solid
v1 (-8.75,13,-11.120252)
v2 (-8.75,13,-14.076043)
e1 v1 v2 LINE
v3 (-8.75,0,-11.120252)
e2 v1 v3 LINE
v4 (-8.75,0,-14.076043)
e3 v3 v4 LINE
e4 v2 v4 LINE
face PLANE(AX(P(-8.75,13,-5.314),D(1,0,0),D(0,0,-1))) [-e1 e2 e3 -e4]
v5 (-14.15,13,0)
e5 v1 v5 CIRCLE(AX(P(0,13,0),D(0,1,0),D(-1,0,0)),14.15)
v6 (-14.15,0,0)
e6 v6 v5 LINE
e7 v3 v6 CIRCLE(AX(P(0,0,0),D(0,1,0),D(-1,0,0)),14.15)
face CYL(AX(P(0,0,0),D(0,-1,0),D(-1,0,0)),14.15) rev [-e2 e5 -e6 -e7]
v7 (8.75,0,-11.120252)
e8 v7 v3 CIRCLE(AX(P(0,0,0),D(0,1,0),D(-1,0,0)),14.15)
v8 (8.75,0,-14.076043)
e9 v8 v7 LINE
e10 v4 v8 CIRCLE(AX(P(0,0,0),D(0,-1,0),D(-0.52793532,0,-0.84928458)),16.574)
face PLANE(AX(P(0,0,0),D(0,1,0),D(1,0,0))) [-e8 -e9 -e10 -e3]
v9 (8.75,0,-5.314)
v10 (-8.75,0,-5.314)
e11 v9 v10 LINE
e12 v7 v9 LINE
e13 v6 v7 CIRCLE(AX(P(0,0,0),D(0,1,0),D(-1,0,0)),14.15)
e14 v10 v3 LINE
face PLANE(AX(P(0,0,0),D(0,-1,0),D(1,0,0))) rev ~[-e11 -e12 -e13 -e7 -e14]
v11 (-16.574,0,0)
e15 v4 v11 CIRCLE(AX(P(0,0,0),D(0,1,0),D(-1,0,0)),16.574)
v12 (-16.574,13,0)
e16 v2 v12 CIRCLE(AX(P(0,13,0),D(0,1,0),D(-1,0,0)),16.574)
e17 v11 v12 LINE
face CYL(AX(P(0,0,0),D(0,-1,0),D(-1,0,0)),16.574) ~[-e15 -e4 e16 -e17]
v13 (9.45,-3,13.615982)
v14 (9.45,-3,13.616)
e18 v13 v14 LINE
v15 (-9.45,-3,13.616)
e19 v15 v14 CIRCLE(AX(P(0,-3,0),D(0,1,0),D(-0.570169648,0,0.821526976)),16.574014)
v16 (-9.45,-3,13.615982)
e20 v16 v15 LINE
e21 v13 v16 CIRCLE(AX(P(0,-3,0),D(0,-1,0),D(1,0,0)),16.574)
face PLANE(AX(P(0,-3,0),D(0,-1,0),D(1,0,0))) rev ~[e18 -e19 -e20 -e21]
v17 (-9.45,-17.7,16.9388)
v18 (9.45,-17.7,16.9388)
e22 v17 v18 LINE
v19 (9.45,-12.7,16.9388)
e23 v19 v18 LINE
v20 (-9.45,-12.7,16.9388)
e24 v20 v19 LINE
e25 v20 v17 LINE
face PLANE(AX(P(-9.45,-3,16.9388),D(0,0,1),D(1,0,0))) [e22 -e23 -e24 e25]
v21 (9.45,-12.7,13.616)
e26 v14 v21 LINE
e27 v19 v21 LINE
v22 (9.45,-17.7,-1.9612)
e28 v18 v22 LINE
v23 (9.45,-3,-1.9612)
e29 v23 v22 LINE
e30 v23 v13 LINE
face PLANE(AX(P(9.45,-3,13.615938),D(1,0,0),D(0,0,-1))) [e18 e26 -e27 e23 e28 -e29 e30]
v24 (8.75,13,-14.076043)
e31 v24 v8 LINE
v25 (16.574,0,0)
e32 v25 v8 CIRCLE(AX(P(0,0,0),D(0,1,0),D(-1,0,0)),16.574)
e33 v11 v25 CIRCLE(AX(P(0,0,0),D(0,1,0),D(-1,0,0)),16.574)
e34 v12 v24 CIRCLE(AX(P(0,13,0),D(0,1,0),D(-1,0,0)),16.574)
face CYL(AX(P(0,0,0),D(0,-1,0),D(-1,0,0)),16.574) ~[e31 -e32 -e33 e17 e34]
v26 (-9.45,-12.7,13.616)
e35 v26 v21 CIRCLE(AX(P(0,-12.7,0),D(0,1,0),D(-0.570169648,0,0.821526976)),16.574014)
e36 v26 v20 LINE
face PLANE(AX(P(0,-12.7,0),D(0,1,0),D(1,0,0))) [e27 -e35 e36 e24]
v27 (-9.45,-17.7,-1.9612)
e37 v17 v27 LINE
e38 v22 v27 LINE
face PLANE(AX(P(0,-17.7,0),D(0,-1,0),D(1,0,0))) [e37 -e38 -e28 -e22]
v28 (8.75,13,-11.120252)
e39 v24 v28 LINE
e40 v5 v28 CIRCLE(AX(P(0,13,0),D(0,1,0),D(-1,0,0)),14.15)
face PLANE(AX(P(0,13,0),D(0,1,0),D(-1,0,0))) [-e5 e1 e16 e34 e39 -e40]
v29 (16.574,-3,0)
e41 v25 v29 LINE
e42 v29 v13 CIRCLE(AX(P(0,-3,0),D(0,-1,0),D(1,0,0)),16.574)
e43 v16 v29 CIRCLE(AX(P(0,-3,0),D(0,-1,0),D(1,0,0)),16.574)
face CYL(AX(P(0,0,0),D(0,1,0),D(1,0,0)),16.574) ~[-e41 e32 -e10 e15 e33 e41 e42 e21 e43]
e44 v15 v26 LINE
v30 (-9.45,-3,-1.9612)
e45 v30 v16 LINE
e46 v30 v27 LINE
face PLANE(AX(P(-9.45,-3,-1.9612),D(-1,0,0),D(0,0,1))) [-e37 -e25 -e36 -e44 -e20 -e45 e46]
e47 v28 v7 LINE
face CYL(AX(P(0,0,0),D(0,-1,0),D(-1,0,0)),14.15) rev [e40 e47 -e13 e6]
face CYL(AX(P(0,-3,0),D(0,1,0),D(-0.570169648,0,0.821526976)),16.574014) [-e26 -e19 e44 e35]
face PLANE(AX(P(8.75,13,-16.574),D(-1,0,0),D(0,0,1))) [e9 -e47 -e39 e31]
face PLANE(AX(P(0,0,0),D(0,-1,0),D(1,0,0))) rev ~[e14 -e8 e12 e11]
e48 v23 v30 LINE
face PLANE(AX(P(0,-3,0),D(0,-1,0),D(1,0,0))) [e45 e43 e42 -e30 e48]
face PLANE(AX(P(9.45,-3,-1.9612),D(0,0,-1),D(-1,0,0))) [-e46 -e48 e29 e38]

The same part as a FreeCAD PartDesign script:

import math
import FreeCAD as App
import Part
import Sketcher
from FreeCAD import Vector
Q = App.Units.Quantity


def add_polygon(sketch, points):
    """Adds a closed chain of lines whose ends are joined by coincident constraints."""
    first, n = sketch.GeometryCount, len(points)
    for a, b in zip(points, points[1:] + points[:1]):
        sketch.addGeometry(Part.LineSegment(App.Vector(*a, 0), App.Vector(*b, 0)), False)
    for i in range(n):
        sketch.addConstraint(Sketcher.Constraint("Coincident", first + i, 2, first + (i + 1) % n, 1))

doc = App.newDocument("Part")
body = doc.addObject("PartDesign::Body", "Body")

sketch1 = body.newObject("Sketcher::SketchObject", "Sketch")
sketch1.AttachmentSupport = (doc.getObject("XZ_Plane"), [""])
sketch1.MapMode = "FlatFace"
sketch1.addGeometry(Part.Circle(Vector(0, 0, 0), Vector(0, 0, 1), 17), False)
sketch1.addGeometry(Part.Circle(Vector(0, 0, 0), Vector(0, 0, 1), 14), False)
sketch1.addConstraint(Sketcher.Constraint("Coincident", 0, 3, -1, 1))
sketch1.addConstraint(Sketcher.Constraint("Coincident", 1, 3, -1, 1))
sketch1.addConstraint(Sketcher.Constraint("Diameter", 1, Q("28.3 mm")))
sketch1.addConstraint(Sketcher.Constraint("Diameter", 0, Q("33.148 mm")))
pad1 = body.newObject("PartDesign::Pad", "Pad")
pad1.Profile = sketch1
pad1.Length = 13
pad1.Reversed = True

sketch2 = body.newObject("Sketcher::SketchObject", "Sketch001")
sketch2.AttachmentSupport = (doc.getObject("XZ_Plane"), [""])
sketch2.MapMode = "FlatFace"
sketch2.addGeometry(Part.Circle(Vector(0, 0, 0), Vector(0, 0, 1), 17), False)
sketch2.addConstraint(Sketcher.Constraint("Coincident", 0, 3, -1, 1))
sketch2.addConstraint(Sketcher.Constraint("Diameter", 0, Q("33.148 mm")))
pad2 = body.newObject("PartDesign::Pad", "Pad001")
pad2.Profile = sketch2
pad2.Length = 3

sketch3 = body.newObject("Sketcher::SketchObject", "Sketch002")
sketch3.AttachmentSupport = (doc.getObject("XZ_Plane"), [""])
sketch3.MapMode = "FlatFace"
sketch3.AttachmentOffset = App.Placement(Vector(0, 0, -13), App.Rotation())
add_polygon(sketch3, [(9, -17), (-9, -17), (-9, -5), (9, -5)])
sketch3.addConstraint(Sketcher.Constraint("Horizontal", 0))
sketch3.addConstraint(Sketcher.Constraint("Vertical", 1))
sketch3.addConstraint(Sketcher.Constraint("Horizontal", 2))
sketch3.addConstraint(Sketcher.Constraint("Vertical", 3))
sketch3.addConstraint(Sketcher.Constraint("DistanceX", 0, 2, 0, 1, Q("17.5 mm")))
sketch3.addConstraint(Sketcher.Constraint("DistanceX", 0, 2, -1, 1, Q("8.75 mm")))
sketch3.addConstraint(Sketcher.Constraint("DistanceY", 1, 1, 1, 2, Q("11.26 mm")))
sketch3.addConstraint(Sketcher.Constraint("DistanceY", 0, 2, -1, 1, Q("16.574 mm")))
pocket1 = body.newObject("PartDesign::Pocket", "Pocket")
pocket1.Profile = sketch3
pocket1.Length = 13
pocket1.Reversed = True

sketch4 = body.newObject("Sketcher::SketchObject", "Sketch003")
sketch4.AttachmentSupport = (doc.getObject("XZ_Plane"), [""])
sketch4.MapMode = "FlatFace"
sketch4.AttachmentOffset = App.Placement(Vector(0, 0, 3), App.Rotation())
add_polygon(sketch4, [(9, -2), (9, 17), (-9, 17), (-9, -2)])
sketch4.addConstraint(Sketcher.Constraint("Vertical", 0))
sketch4.addConstraint(Sketcher.Constraint("Horizontal", 1))
sketch4.addConstraint(Sketcher.Constraint("Vertical", 2))
sketch4.addConstraint(Sketcher.Constraint("Horizontal", 3))
sketch4.addConstraint(Sketcher.Constraint("Equal", 3, 0))
sketch4.addConstraint(Sketcher.Constraint("DistanceX", 1, 2, 1, 1, Q("18.9 mm")))
sketch4.addConstraint(Sketcher.Constraint("DistanceX", -1, 1, 0, 2, Q("9.45 mm")))
sketch4.addConstraint(Sketcher.Constraint("DistanceY", -1, 1, 0, 2, Q("16.9388 mm")))
pad3 = body.newObject("PartDesign::Pad", "Pad002")
pad3.Profile = sketch4
pad3.Length = 14.7

sketch5 = body.newObject("Sketcher::SketchObject", "Sketch004")
sketch5.AttachmentSupport = (doc.getObject("XZ_Plane"), [""])
sketch5.MapMode = "FlatFace"
sketch5.AttachmentOffset = App.Placement(Vector(0, 0, 3), App.Rotation())
sketch5.addGeometry(Part.ArcOfCircle(Part.Circle(Vector(0, 0, 0), Vector(0, 0, 1), 16.6), math.radians(55), math.radians(125)), False)
sketch5.addGeometry(Part.LineSegment(Vector(-9.4, 13.6, 0), Vector(-9.4, 16.9, 0)), False)
sketch5.addGeometry(Part.LineSegment(Vector(-9.4, 16.9, 0), Vector(9.4, 16.9, 0)), False)
sketch5.addGeometry(Part.LineSegment(Vector(9.4, 16.9, 0), Vector(9.4, 13.6, 0)), False)
sketch5.addConstraint(Sketcher.Constraint("Coincident", 0, 2, 1, 1))
sketch5.addConstraint(Sketcher.Constraint("Coincident", 1, 2, 2, 1))
sketch5.addConstraint(Sketcher.Constraint("Coincident", 2, 2, 3, 1))
sketch5.addConstraint(Sketcher.Constraint("Coincident", 3, 2, 0, 1))
sketch5.addConstraint(Sketcher.Constraint("Vertical", 1))
sketch5.addConstraint(Sketcher.Constraint("Horizontal", 2))
sketch5.addConstraint(Sketcher.Constraint("Vertical", 3))
sketch5.addConstraint(Sketcher.Constraint("Coincident", 0, 3, -1, 1))
sketch5.addConstraint(Sketcher.Constraint("Horizontal", 0, 2, 3, 2))
sketch5.addConstraint(Sketcher.Constraint("DistanceX", 2, 1, 2, 2, Q("18.9 mm")))
sketch5.addConstraint(Sketcher.Constraint("Radius", 0, Q("16.574 mm")))
sketch5.addConstraint(Sketcher.Constraint("DistanceY", 1, 1, 1, 2, Q("3.3228 mm")))
pocket2 = body.newObject("PartDesign::Pocket", "Pocket001")
pocket2.Profile = sketch5
pocket2.Length = 9.7
pocket2.Reversed = True

doc.recompute()
